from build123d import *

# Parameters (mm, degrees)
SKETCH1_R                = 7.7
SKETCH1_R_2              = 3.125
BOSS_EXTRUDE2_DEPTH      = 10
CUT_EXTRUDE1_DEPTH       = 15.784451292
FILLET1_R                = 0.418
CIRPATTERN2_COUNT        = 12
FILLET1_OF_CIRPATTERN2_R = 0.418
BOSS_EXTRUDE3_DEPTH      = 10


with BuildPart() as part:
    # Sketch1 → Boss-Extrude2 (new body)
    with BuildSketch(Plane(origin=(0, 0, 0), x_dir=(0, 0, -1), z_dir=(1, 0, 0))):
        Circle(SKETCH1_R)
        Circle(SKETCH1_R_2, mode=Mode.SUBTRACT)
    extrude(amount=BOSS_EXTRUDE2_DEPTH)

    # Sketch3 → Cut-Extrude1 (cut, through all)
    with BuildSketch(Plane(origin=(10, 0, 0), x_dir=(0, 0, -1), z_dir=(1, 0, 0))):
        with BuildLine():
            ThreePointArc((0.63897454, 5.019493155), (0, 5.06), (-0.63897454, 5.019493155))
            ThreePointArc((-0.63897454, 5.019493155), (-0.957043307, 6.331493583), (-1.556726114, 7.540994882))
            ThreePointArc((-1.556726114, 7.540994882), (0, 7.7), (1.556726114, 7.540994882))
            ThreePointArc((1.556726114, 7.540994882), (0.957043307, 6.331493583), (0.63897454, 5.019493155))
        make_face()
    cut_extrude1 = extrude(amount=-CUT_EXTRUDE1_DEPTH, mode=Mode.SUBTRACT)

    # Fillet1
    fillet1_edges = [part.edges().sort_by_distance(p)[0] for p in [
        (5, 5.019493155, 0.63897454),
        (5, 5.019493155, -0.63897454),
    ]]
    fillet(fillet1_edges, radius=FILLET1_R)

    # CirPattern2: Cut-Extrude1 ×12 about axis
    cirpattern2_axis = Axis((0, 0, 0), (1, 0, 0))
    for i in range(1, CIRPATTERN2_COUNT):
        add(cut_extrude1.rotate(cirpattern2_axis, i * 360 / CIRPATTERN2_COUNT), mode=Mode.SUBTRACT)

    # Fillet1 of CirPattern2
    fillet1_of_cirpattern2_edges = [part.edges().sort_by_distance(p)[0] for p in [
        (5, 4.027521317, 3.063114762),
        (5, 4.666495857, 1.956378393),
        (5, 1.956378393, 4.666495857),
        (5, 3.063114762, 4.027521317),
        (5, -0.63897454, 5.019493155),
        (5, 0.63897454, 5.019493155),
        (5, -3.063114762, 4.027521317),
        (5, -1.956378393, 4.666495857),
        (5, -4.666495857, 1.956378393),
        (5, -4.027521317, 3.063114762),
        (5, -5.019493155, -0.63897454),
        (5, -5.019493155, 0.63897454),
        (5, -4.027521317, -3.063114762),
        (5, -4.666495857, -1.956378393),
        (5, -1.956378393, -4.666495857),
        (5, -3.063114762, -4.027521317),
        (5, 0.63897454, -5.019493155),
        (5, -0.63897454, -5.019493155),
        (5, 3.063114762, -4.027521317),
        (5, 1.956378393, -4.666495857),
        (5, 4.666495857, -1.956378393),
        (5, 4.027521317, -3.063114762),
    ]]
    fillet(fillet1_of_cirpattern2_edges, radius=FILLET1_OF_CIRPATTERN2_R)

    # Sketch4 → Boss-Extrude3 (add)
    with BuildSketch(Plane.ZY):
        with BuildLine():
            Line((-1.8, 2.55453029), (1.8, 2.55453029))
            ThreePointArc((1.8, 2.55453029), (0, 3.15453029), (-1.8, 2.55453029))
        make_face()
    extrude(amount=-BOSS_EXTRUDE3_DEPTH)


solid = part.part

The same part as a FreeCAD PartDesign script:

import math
import FreeCAD as App
import Part
import Sketcher
from FreeCAD import Vector


def edges_at(feature, points):
    """Names of the edges that pass closest to the given points."""
    edges = feature.Shape.Edges
    near = lambda p: min(range(len(edges)), key=lambda i: edges[i].distToShape(Part.Vertex(*p))[0])
    return sorted({f"Edge{near(p) + 1}" for p in points})

doc = App.newDocument("Part")
params = doc.addObject("Spreadsheet::Sheet", "Params")
for row, (alias, value) in enumerate([
    ("sketch1_diameter", "15.4 mm"),
    ("sketch1_diameter2", "6.25 mm"),
    ("pad1_length", "10 mm"),
    ("sketch2_radius", "7.7 mm"),
    ("sketch2_radius2", "5.06 mm"),
    ("fillet_radius", "0.418 mm"),
    ("fillet2_radius", "0.418 mm"),
    ("sketch3_radius", "3 mm"),
    ("sketch3_height", "3.6 mm"),
    ("pad2_length", "10 mm"),
], start=1):
    params.set(f"A{row}", alias)
    params.set(f"B{row}", "=" + value)
    params.setAlias(f"B{row}", alias)

body = doc.addObject("PartDesign::Body", "Body")

sketch1 = body.newObject("Sketcher::SketchObject", "Sketch")
sketch1.AttachmentSupport = (doc.getObject("YZ_Plane"), [""])
sketch1.MapMode = "FlatFace"
sketch1.addGeometry(Part.Circle(Vector(0, 0, 0), Vector(0, 0, 1), 7.7), False)
sketch1.addGeometry(Part.Circle(Vector(0, 0, 0), Vector(0, 0, 1), 3.1), False)
sketch1.addConstraint(Sketcher.Constraint("Coincident", 0, 3, -1, 1))
sketch1.addConstraint(Sketcher.Constraint("Coincident", 1, 3, -1, 1))
sketch1.addConstraint(Sketcher.Constraint("Diameter", 0, 15.4))
sketch1.addConstraint(Sketcher.Constraint("Diameter", 1, 6.25))
sketch1.setExpression("Constraints[2]", "Params.sketch1_diameter")
sketch1.setExpression("Constraints[3]", "Params.sketch1_diameter2")
pad1 = body.newObject("PartDesign::Pad", "Pad")
pad1.Profile = sketch1
pad1.setExpression("Length", "Params.pad1_length")

sketch2 = body.newObject("Sketcher::SketchObject", "Sketch001")
sketch2.AttachmentSupport = (doc.getObject("YZ_Plane"), [""])
sketch2.MapMode = "FlatFace"
sketch2.AttachmentOffset = App.Placement(Vector(0, 0, 10), App.Rotation())
sketch2.addGeometry(Part.ArcOfCircle(Part.Circle(Vector(0, 0, 0), Vector(0, 0, 1), 5.1), math.radians(-7.25), math.radians(7.25)), False)
sketch2.addGeometry(Part.ArcOfCircle(Part.Circle(Vector(4.3, -6.7, 0), Vector(0, 0, 1), 6.1), math.radians(57), math.radians(83)), False)
sketch2.addGeometry(Part.ArcOfCircle(Part.Circle(Vector(0, 0, 0), Vector(0, 0, 1), 7.7), math.radians(-12), math.radians(12)), False)
sketch2.addGeometry(Part.ArcOfCircle(Part.Circle(Vector(4.3, 6.7, 0), Vector(0, 0, 1), 6.1), math.radians(-83), math.radians(-57)), False)
sketch2.addConstraint(Sketcher.Constraint("Coincident", 0, 1, 1, 2))
sketch2.addConstraint(Sketcher.Constraint("Coincident", 1, 1, 2, 1))
sketch2.addConstraint(Sketcher.Constraint("Coincident", 2, 2, 3, 2))
sketch2.addConstraint(Sketcher.Constraint("Coincident", 3, 1, 0, 2))
sketch2.addConstraint(Sketcher.Constraint("Coincident", 0, 3, -1, 1))
sketch2.addConstraint(Sketcher.Constraint("Coincident", 2, 3, -1, 1))
sketch2.addConstraint(Sketcher.Constraint("Equal", 1, 3))
sketch2.addConstraint(Sketcher.Constraint("Symmetric", 1, 3, 3, 3, -1))
sketch2.addConstraint(Sketcher.Constraint("Radius", 2, 7.7))
sketch2.addConstraint(Sketcher.Constraint("Radius", 0, 5.06))
sketch2.addConstraint(Sketcher.Constraint("Radius", 1, 6.08138))
sketch2.addConstraint(Sketcher.Constraint("DistanceX", 0, 1, 1, 1, 2.521502))
sketch2.addConstraint(Sketcher.Constraint("DistanceY", 0, 1, 2, 2, 2.195701))
sketch2.setExpression("Constraints[8]", "Params.sketch2_radius")
sketch2.setExpression("Constraints[9]", "Params.sketch2_radius2")
pocket1 = body.newObject("PartDesign::Pocket", "Pocket")
pocket1.Profile = sketch2
pocket1.Type = "ThroughAll"
doc.recompute()

fillet = body.newObject("PartDesign::Fillet", "Fillet")
fillet.Base = (pocket1, edges_at(pocket1, [(5, 5.019, 0.639), (5, 5.019, -0.639)]))
fillet.setExpression("Radius", "Params.fillet_radius")
doc.recompute()

polarpattern = body.newObject("PartDesign::PolarPattern", "PolarPattern")
polarpattern.Originals = [pocket1]
polarpattern.Axis = (doc.getObject("X_Axis"), [""])
polarpattern.Angle = 360
polarpattern.Occurrences = 12
body.Tip = polarpattern
doc.recompute()

fillet2 = body.newObject("PartDesign::Fillet", "Fillet001")
fillet2.Base = (polarpattern, edges_at(polarpattern, [
    (5, 4.028, 3.063),
    (5, 4.666, 1.956),
    (5, 1.956, 4.666),
    (5, 3.063, 4.028),
    (5, -0.639, 5.019),
    (5, 0.639, 5.019),
    (5, -3.063, 4.028),
    (5, -1.956, 4.666),
    (5, -4.666, 1.956),
    (5, -4.028, 3.063),
    (5, -5.019, -0.639),
    (5, -5.019, 0.639),
    (5, -4.028, -3.063),
    (5, -4.666, -1.956),
    (5, -1.956, -4.666),
    (5, -3.063, -4.028),
    (5, 0.639, -5.019),
    (5, -0.639, -5.019),
    (5, 3.063, -4.028),
    (5, 1.956, -4.666),
    (5, 4.666, -1.956),
    (5, 4.028, -3.063),
]))
fillet2.setExpression("Radius", "Params.fillet2_radius")

sketch3 = body.newObject("Sketcher::SketchObject", "Sketch002")
sketch3.AttachmentSupport = (doc.getObject("YZ_Plane"), [""])
sketch3.MapMode = "FlatFace"
sketch3.addGeometry(Part.LineSegment(Vector(2.6, -1.8, 0), Vector(2.6, 1.8, 0)), False)
sketch3.addGeometry(Part.ArcOfCircle(Part.Circle(Vector(0.2, 0, 0), Vector(0, 0, 1), 3), math.radians(-37), math.radians(37)), False)
sketch3.addConstraint(Sketcher.Constraint("Coincident", 0, 1, 1, 1))
sketch3.addConstraint(Sketcher.Constraint("Coincident", 1, 2, 0, 2))
sketch3.addConstraint(Sketcher.Constraint("Vertical", 0))
sketch3.addConstraint(Sketcher.Constraint("PointOnObject", 1, 3, -1))
sketch3.addConstraint(Sketcher.Constraint("Radius", 1, 3.0))
sketch3.addConstraint(Sketcher.Constraint("DistanceY", 0, 1, 0, 2, 3.6))
sketch3.addConstraint(Sketcher.Constraint("DistanceX", -1, 1, 1, 3, 0.15453))
sketch3.setExpression("Constraints[4]", "Params.sketch3_radius")
sketch3.setExpression("Constraints[5]", "Params.sketch3_height")
pad2 = body.newObject("PartDesign::Pad", "Pad001")
pad2.Profile = sketch3
pad2.setExpression("Length", "Params.pad2_length")

doc.recompute()
